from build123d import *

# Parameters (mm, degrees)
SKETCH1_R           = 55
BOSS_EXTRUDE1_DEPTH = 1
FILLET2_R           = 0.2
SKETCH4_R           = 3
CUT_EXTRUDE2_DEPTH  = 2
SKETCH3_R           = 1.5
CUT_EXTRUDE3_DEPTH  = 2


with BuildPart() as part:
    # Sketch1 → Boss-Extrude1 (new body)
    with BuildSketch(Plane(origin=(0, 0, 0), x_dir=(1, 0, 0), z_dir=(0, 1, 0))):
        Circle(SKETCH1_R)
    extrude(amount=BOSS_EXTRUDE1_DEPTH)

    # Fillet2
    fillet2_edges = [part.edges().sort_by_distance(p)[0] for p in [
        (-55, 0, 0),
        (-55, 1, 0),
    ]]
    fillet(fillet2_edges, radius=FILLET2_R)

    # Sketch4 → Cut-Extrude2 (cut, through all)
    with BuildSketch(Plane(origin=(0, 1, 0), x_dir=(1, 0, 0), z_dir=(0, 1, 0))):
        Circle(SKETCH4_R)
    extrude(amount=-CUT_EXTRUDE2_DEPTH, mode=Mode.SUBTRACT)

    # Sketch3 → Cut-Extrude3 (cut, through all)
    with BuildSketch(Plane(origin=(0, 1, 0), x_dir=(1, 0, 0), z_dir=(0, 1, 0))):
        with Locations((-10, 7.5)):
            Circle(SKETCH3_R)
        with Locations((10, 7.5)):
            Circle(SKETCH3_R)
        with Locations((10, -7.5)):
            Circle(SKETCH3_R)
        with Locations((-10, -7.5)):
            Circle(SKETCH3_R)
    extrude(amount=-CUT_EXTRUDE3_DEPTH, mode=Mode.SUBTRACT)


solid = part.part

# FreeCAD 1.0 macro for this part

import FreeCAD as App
import Part
import Sketcher


def edges_at(feature, points):
    """Names of the edges that pass closest to the given points."""
    edges = feature.Shape.Edges
    near = lambda p: min(range(len(edges)), key=lambda i: edges[i].distToShape(Part.Vertex(*p))[0])
    return sorted({f"Edge{near(p) + 1}" for p in points})

doc = App.newDocument("Part")
params = doc.addObject("Spreadsheet::Sheet", "Params")
for row, (alias, value) in enumerate([
    ("sketch1_diameter", "110 mm"),
    ("pad1_length", "1 mm"),
    ("fillet_radius", "0.2 mm"),
    ("sketch2_diameter", "6 mm"),
    ("sketch3_diameter", "3 mm"),
], start=1):
    params.set(f"A{row}", alias)
    params.set(f"B{row}", "=" + value)
    params.setAlias(f"B{row}", alias)

body = doc.addObject("PartDesign::Body", "Body")

sketch1 = doc.addObject("Sketcher::SketchObject", "Sketch")
body.addObject(sketch1)
sketch1.AttachmentSupport = (doc.XZ_Plane, [""])
sketch1.MapMode = "FlatFace"
sketch1.addGeometry(Part.Circle(App.Vector(0, 0, 0), App.Vector(0, 0, 1), 55), False)
sketch1.addConstraint([
    Sketcher.Constraint("Coincident", 0, 3, -1, 1),
    Sketcher.Constraint("Diameter", 0, 110.0),
])
sketch1.setExpression("Constraints[1]", "Params.sketch1_diameter")
pad1 = doc.addObject("PartDesign::Pad", "Pad")
body.addObject(pad1)
pad1.Profile = sketch1
pad1.setExpression("Length", "Params.pad1_length")
pad1.Reversed = True
doc.recompute()

fillet = doc.addObject("PartDesign::Fillet", "Fillet")
body.addObject(fillet)
fillet.Base = (pad1, edges_at(pad1, [(-55, 0, 0), (-55, 1, 0)]))
fillet.setExpression("Radius", "Params.fillet_radius")

sketch2 = doc.addObject("Sketcher::SketchObject", "Sketch001")
body.addObject(sketch2)
sketch2.AttachmentSupport = (doc.XZ_Plane, [""])
sketch2.MapMode = "FlatFace"
sketch2.AttachmentOffset = App.Placement(App.Vector(0, 0, -1), App.Rotation())
sketch2.addGeometry(Part.Circle(App.Vector(0, 0, 0), App.Vector(0, 0, 1), 3), False)
sketch2.addConstraint([
    Sketcher.Constraint("Coincident", 0, 3, -1, 1),
    Sketcher.Constraint("Diameter", 0, 6.0),
])
sketch2.setExpression("Constraints[1]", "Params.sketch2_diameter")
pocket1 = doc.addObject("PartDesign::Pocket", "Pocket")
body.addObject(pocket1)
pocket1.Profile = sketch2
pocket1.Type = "ThroughAll"
pocket1.Reversed = True

sketch3 = doc.addObject("Sketcher::SketchObject", "Sketch002")
body.addObject(sketch3)
sketch3.AttachmentSupport = (doc.XZ_Plane, [""])
sketch3.MapMode = "FlatFace"
sketch3.AttachmentOffset = App.Placement(App.Vector(0, 0, -1), App.Rotation())
sketch3.addGeometry([
    Part.Circle(App.Vector(-10, -7.5, 0), App.Vector(0, 0, 1), 1.5),
    Part.Circle(App.Vector(10, -7.5, 0), App.Vector(0, 0, 1), 1.5),
    Part.Circle(App.Vector(10, 7.5, 0), App.Vector(0, 0, 1), 1.5),
    Part.Circle(App.Vector(-10, 7.5, 0), App.Vector(0, 0, 1), 1.5),
], False)
sketch3.addConstraint([
    Sketcher.Constraint("Equal", 0, 1),
    Sketcher.Constraint("Equal", 1, 2),
    Sketcher.Constraint("Equal", 2, 3),
    Sketcher.Constraint("Symmetric", 0, 3, 2, 3, -1, 1),
    Sketcher.Constraint("Symmetric", 1, 3, 3, 3, -1, 1),
    Sketcher.Constraint("Symmetric", 0, 3, 1, 3, -2),
    Sketcher.Constraint("Diameter", 0, 3.0),
    Sketcher.Constraint("DistanceX", 0, 3, -1, 1, 10.0),
    Sketcher.Constraint("DistanceY", 1, 3, 2, 3, 15.0),
])
sketch3.setExpression("Constraints[6]", "Params.sketch3_diameter")
pocket2 = doc.addObject("PartDesign::Pocket", "Pocket001")
body.addObject(pocket2)
pocket2.Profile = sketch3
pocket2.Type = "ThroughAll"
pocket2.Reversed = True

doc.recompute()
